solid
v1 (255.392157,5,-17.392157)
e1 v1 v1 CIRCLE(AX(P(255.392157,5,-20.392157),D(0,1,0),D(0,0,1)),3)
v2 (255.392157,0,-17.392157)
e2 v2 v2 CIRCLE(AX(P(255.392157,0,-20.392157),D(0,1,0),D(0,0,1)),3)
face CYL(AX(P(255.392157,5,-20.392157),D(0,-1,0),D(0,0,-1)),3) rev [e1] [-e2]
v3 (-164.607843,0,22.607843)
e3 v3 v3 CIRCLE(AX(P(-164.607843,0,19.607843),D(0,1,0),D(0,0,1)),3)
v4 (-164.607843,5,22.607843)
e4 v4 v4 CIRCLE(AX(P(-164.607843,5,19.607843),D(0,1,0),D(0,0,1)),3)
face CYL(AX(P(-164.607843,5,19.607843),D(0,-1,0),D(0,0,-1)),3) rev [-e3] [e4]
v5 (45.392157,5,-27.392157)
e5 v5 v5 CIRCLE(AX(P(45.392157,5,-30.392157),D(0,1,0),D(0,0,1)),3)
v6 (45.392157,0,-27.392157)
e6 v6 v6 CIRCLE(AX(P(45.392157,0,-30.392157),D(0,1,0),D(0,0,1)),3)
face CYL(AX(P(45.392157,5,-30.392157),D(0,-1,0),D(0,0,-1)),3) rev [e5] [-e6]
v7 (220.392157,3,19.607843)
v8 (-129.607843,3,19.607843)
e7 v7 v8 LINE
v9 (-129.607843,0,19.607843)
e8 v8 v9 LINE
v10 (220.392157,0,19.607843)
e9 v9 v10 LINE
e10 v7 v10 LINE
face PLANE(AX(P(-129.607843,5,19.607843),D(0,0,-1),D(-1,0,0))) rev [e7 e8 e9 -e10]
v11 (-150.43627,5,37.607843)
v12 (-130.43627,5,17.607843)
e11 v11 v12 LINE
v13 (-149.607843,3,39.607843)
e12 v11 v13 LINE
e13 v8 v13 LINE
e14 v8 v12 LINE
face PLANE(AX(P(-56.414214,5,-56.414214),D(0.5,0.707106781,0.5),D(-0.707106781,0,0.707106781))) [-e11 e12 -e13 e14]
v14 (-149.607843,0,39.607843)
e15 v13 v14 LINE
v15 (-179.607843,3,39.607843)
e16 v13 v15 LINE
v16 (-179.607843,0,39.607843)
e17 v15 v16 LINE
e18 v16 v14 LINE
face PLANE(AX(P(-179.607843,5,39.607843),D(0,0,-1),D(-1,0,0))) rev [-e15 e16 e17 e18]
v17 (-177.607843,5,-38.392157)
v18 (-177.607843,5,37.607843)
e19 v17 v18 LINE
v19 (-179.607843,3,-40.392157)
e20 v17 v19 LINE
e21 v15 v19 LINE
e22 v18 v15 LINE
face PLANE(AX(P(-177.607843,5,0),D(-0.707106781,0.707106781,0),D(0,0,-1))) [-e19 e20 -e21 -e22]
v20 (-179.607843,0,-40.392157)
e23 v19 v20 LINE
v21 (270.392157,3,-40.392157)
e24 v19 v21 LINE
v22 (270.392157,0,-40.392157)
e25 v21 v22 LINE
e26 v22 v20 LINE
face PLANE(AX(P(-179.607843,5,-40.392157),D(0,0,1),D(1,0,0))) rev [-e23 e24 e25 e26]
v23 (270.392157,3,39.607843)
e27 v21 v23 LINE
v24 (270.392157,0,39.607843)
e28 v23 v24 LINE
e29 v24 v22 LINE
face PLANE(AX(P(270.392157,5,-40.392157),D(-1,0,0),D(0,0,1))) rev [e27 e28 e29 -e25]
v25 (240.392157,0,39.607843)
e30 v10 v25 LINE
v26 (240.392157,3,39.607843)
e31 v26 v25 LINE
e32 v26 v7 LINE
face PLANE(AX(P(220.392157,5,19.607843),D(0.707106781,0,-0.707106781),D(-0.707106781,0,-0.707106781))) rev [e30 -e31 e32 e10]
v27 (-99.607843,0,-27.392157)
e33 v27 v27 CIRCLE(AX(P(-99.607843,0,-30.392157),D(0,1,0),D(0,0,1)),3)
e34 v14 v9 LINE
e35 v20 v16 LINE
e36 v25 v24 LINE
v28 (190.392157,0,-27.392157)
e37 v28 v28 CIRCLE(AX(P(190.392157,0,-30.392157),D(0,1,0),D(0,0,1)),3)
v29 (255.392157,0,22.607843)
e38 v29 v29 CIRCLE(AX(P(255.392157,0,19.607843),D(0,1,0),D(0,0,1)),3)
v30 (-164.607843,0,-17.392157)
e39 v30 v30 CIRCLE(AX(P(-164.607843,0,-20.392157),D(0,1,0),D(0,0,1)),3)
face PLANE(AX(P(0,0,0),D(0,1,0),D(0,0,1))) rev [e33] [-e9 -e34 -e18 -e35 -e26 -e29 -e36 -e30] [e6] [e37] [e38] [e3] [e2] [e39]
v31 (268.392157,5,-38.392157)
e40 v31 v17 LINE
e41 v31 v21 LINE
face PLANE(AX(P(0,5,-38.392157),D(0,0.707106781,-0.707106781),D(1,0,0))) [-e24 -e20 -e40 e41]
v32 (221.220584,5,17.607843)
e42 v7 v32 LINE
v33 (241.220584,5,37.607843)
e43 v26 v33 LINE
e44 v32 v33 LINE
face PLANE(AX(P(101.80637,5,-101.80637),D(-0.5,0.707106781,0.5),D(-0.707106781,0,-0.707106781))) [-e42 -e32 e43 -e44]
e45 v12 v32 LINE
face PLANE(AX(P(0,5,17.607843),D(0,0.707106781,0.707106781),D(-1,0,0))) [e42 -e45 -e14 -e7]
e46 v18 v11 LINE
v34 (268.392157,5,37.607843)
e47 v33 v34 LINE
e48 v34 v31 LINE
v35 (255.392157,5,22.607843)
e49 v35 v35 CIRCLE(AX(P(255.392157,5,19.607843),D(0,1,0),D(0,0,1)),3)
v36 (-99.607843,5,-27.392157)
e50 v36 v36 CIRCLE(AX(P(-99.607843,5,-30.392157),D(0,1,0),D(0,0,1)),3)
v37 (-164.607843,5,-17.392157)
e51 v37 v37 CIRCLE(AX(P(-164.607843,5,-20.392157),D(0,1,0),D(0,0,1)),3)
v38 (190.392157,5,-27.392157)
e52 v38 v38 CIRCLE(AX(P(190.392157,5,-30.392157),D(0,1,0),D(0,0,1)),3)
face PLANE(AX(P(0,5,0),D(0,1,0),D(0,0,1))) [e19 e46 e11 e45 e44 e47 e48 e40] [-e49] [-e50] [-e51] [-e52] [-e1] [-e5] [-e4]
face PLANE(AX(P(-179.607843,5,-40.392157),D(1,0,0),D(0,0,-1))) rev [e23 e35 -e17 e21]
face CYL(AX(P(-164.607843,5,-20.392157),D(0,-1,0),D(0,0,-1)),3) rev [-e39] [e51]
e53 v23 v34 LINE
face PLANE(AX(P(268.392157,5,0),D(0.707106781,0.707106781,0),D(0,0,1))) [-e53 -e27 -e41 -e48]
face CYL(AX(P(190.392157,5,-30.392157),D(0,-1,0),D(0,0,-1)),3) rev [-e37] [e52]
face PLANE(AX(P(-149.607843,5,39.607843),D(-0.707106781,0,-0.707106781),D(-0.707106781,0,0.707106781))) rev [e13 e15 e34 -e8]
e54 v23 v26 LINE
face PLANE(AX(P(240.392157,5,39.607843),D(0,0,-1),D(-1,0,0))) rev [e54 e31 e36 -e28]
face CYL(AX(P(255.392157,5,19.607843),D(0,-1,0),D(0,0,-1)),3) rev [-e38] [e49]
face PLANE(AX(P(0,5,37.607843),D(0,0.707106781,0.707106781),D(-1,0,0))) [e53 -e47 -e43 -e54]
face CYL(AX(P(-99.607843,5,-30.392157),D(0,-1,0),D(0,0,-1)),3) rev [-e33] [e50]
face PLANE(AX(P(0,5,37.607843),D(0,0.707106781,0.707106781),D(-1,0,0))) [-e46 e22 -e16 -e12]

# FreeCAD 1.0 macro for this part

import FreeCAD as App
import Part
import Sketcher

V = App.Vector
Q = App.Units.Quantity


def edges_at(feature, points):
    """Names of the edges that pass closest to the given points."""
    edges = feature.Shape.Edges
    near = lambda p: min(range(len(edges)), key=lambda i: edges[i].distToShape(Part.Vertex(*p))[0])
    return sorted({f"Edge{near(p) + 1}" for p in points})

doc = App.newDocument("Part")
params = doc.addObject("Spreadsheet::Sheet", "Params")
for row, (alias, value) in enumerate([
    ("sketch1_diameter", "6 mm"),
    ("sketch1_width", "350 mm"),
    ("sketch1_width2", "30 mm"),
    ("sketch1_width3", "450 mm"),
    ("sketch1_height", "80 mm"),
    ("pad1_length", "5 mm"),
    ("chamfer_size", "2 mm"),
], start=1):
    params.set(f"A{row}", alias)
    params.set(f"B{row}", "=" + value)
    params.setAlias(f"B{row}", alias)

body = doc.addObject("PartDesign::Body", "Body")

sketch1 = body.newObject("Sketcher::SketchObject", "Sketch")
sketch1.AttachmentSupport = (doc.getObject("XZ_Plane"), [""])
sketch1.MapMode = "FlatFace"
sketch1.addGeometry(Part.LineSegment(V(-149.6, 39.6, 0), V(-129.6, 19.6, 0)), False)
sketch1.addGeometry(Part.LineSegment(V(-129.6, 19.6, 0), V(220.4, 19.6, 0)), False)
sketch1.addGeometry(Part.LineSegment(V(220.4, 19.6, 0), V(240.4, 39.6, 0)), False)
sketch1.addGeometry(Part.LineSegment(V(240.4, 39.6, 0), V(270.4, 39.6, 0)), False)
sketch1.addGeometry(Part.LineSegment(V(270.4, 39.6, 0), V(270.4, -40.4, 0)), False)
sketch1.addGeometry(Part.LineSegment(V(270.4, -40.4, 0), V(-179.6, -40.4, 0)), False)
sketch1.addGeometry(Part.LineSegment(V(-179.6, -40.4, 0), V(-179.6, 39.6, 0)), False)
sketch1.addGeometry(Part.LineSegment(V(-179.6, 39.6, 0), V(-149.6, 39.6, 0)), False)
sketch1.addGeometry(Part.Circle(V(-164.6, 19.6, 0), V(0, 0, 1), 3), False)
sketch1.addGeometry(Part.Circle(V(255.4, 19.6, 0), V(0, 0, 1), 3), False)
sketch1.addGeometry(Part.Circle(V(-164.6, -20.4, 0), V(0, 0, 1), 3), False)
sketch1.addGeometry(Part.Circle(V(-99.6, -30.4, 0), V(0, 0, 1), 3), False)
sketch1.addGeometry(Part.Circle(V(45.4, -30.4, 0), V(0, 0, 1), 3), False)
sketch1.addGeometry(Part.Circle(V(255.4, -20.4, 0), V(0, 0, 1), 3), False)
sketch1.addGeometry(Part.Circle(V(190.4, -30.4, 0), V(0, 0, 1), 3), False)
sketch1.addConstraint(Sketcher.Constraint("Coincident", 0, 2, 1, 1))
sketch1.addConstraint(Sketcher.Constraint("Coincident", 1, 2, 2, 1))
sketch1.addConstraint(Sketcher.Constraint("Coincident", 2, 2, 3, 1))
sketch1.addConstraint(Sketcher.Constraint("Coincident", 3, 2, 4, 1))
sketch1.addConstraint(Sketcher.Constraint("Coincident", 4, 2, 5, 1))
sketch1.addConstraint(Sketcher.Constraint("Coincident", 5, 2, 6, 1))
sketch1.addConstraint(Sketcher.Constraint("Coincident", 6, 2, 7, 1))
sketch1.addConstraint(Sketcher.Constraint("Coincident", 7, 2, 0, 1))
sketch1.addConstraint(Sketcher.Constraint("Horizontal", 1))
sketch1.addConstraint(Sketcher.Constraint("Horizontal", 3))
sketch1.addConstraint(Sketcher.Constraint("Vertical", 4))
sketch1.addConstraint(Sketcher.Constraint("Horizontal", 5))
sketch1.addConstraint(Sketcher.Constraint("Vertical", 6))
sketch1.addConstraint(Sketcher.Constraint("Horizontal", 7))
sketch1.addConstraint(Sketcher.Constraint("Equal", 8, 9))
sketch1.addConstraint(Sketcher.Constraint("Equal", 9, 10))
sketch1.addConstraint(Sketcher.Constraint("Equal", 10, 11))
sketch1.addConstraint(Sketcher.Constraint("Equal", 11, 12))
sketch1.addConstraint(Sketcher.Constraint("Equal", 12, 13))
sketch1.addConstraint(Sketcher.Constraint("Equal", 13, 14))
sketch1.addConstraint(Sketcher.Constraint("Perpendicular", 0, 2))
sketch1.addConstraint(Sketcher.Constraint("Horizontal", 8, 3, 9, 3))
sketch1.addConstraint(Sketcher.Constraint("Horizontal", 11, 3, 12, 3))
sketch1.addConstraint(Sketcher.Constraint("Horizontal", 10, 3, 13, 3))
sketch1.addConstraint(Sketcher.Constraint("Horizontal", 12, 3, 14, 3))
sketch1.addConstraint(Sketcher.Constraint("Horizontal", 9, 3, 0, 2))
sketch1.addConstraint(Sketcher.Constraint("Horizontal", 3, 2, 6, 2))
sketch1.addConstraint(Sketcher.Constraint("Vertical", 8, 3, 10, 3))
sketch1.addConstraint(Sketcher.Constraint("Vertical", 9, 3, 13, 3))
sketch1.addConstraint(Sketcher.Constraint("Equal", 3, 7))
sketch1.addConstraint(Sketcher.Constraint("Equal", 0, 2))
sketch1.addConstraint(Sketcher.Constraint("Diameter", 8, Q("6 mm")))
sketch1.addConstraint(Sketcher.Constraint("DistanceX", 1, 1, 1, 2, Q("350 mm")))
sketch1.addConstraint(Sketcher.Constraint("DistanceX", 3, 1, 3, 2, Q("30 mm")))
sketch1.addConstraint(Sketcher.Constraint("DistanceX", 5, 2, 5, 1, Q("450 mm")))
sketch1.addConstraint(Sketcher.Constraint("DistanceY", 4, 2, 4, 1, Q("80 mm")))
sketch1.addConstraint(Sketcher.Constraint("DistanceX", 8, 3, 9, 3, Q("420 mm")))
sketch1.addConstraint(Sketcher.Constraint("DistanceY", 10, 3, 8, 3, Q("40 mm")))
sketch1.addConstraint(Sketcher.Constraint("DistanceX", 10, 3, 11, 3, Q("65 mm")))
sketch1.addConstraint(Sketcher.Constraint("DistanceY", 11, 3, 10, 3, Q("10 mm")))
sketch1.addConstraint(Sketcher.Constraint("DistanceX", 11, 3, 12, 3, Q("145 mm")))
sketch1.addConstraint(Sketcher.Constraint("DistanceX", 14, 3, 13, 3, Q("65 mm")))
sketch1.addConstraint(Sketcher.Constraint("DistanceX", 8, 3, 0, 2, Q("35 mm")))
sketch1.addConstraint(Sketcher.Constraint("DistanceX", 8, 3, -1, 1, Q("164.607843 mm")))
sketch1.addConstraint(Sketcher.Constraint("DistanceY", -1, 1, 8, 3, Q("19.607843 mm")))
sketch1.setExpression("Constraints[31]", "Params.sketch1_diameter")
sketch1.setExpression("Constraints[32]", "Params.sketch1_width")
sketch1.setExpression("Constraints[33]", "Params.sketch1_width2")
sketch1.setExpression("Constraints[34]", "Params.sketch1_width3")
sketch1.setExpression("Constraints[35]", "Params.sketch1_height")
pad1 = body.newObject("PartDesign::Pad", "Pad")
pad1.Profile = sketch1
pad1.setExpression("Length", "Params.pad1_length")
pad1.Reversed = True
doc.recompute()

chamfer = body.newObject("PartDesign::Chamfer", "Chamfer")
chamfer.Base = (pad1, edges_at(pad1, [
    (-139.608, 5, 29.608),
    (45.392, 5, 19.608),
    (230.392, 5, 29.608),
    (255.392, 5, 39.608),
    (270.392, 5, -0.392),
    (45.392, 5, -40.392),
    (-179.608, 5, -0.392),
    (-164.608, 5, 39.608),
]))
chamfer.setExpression("Size", "Params.chamfer_size")

doc.recompute()
